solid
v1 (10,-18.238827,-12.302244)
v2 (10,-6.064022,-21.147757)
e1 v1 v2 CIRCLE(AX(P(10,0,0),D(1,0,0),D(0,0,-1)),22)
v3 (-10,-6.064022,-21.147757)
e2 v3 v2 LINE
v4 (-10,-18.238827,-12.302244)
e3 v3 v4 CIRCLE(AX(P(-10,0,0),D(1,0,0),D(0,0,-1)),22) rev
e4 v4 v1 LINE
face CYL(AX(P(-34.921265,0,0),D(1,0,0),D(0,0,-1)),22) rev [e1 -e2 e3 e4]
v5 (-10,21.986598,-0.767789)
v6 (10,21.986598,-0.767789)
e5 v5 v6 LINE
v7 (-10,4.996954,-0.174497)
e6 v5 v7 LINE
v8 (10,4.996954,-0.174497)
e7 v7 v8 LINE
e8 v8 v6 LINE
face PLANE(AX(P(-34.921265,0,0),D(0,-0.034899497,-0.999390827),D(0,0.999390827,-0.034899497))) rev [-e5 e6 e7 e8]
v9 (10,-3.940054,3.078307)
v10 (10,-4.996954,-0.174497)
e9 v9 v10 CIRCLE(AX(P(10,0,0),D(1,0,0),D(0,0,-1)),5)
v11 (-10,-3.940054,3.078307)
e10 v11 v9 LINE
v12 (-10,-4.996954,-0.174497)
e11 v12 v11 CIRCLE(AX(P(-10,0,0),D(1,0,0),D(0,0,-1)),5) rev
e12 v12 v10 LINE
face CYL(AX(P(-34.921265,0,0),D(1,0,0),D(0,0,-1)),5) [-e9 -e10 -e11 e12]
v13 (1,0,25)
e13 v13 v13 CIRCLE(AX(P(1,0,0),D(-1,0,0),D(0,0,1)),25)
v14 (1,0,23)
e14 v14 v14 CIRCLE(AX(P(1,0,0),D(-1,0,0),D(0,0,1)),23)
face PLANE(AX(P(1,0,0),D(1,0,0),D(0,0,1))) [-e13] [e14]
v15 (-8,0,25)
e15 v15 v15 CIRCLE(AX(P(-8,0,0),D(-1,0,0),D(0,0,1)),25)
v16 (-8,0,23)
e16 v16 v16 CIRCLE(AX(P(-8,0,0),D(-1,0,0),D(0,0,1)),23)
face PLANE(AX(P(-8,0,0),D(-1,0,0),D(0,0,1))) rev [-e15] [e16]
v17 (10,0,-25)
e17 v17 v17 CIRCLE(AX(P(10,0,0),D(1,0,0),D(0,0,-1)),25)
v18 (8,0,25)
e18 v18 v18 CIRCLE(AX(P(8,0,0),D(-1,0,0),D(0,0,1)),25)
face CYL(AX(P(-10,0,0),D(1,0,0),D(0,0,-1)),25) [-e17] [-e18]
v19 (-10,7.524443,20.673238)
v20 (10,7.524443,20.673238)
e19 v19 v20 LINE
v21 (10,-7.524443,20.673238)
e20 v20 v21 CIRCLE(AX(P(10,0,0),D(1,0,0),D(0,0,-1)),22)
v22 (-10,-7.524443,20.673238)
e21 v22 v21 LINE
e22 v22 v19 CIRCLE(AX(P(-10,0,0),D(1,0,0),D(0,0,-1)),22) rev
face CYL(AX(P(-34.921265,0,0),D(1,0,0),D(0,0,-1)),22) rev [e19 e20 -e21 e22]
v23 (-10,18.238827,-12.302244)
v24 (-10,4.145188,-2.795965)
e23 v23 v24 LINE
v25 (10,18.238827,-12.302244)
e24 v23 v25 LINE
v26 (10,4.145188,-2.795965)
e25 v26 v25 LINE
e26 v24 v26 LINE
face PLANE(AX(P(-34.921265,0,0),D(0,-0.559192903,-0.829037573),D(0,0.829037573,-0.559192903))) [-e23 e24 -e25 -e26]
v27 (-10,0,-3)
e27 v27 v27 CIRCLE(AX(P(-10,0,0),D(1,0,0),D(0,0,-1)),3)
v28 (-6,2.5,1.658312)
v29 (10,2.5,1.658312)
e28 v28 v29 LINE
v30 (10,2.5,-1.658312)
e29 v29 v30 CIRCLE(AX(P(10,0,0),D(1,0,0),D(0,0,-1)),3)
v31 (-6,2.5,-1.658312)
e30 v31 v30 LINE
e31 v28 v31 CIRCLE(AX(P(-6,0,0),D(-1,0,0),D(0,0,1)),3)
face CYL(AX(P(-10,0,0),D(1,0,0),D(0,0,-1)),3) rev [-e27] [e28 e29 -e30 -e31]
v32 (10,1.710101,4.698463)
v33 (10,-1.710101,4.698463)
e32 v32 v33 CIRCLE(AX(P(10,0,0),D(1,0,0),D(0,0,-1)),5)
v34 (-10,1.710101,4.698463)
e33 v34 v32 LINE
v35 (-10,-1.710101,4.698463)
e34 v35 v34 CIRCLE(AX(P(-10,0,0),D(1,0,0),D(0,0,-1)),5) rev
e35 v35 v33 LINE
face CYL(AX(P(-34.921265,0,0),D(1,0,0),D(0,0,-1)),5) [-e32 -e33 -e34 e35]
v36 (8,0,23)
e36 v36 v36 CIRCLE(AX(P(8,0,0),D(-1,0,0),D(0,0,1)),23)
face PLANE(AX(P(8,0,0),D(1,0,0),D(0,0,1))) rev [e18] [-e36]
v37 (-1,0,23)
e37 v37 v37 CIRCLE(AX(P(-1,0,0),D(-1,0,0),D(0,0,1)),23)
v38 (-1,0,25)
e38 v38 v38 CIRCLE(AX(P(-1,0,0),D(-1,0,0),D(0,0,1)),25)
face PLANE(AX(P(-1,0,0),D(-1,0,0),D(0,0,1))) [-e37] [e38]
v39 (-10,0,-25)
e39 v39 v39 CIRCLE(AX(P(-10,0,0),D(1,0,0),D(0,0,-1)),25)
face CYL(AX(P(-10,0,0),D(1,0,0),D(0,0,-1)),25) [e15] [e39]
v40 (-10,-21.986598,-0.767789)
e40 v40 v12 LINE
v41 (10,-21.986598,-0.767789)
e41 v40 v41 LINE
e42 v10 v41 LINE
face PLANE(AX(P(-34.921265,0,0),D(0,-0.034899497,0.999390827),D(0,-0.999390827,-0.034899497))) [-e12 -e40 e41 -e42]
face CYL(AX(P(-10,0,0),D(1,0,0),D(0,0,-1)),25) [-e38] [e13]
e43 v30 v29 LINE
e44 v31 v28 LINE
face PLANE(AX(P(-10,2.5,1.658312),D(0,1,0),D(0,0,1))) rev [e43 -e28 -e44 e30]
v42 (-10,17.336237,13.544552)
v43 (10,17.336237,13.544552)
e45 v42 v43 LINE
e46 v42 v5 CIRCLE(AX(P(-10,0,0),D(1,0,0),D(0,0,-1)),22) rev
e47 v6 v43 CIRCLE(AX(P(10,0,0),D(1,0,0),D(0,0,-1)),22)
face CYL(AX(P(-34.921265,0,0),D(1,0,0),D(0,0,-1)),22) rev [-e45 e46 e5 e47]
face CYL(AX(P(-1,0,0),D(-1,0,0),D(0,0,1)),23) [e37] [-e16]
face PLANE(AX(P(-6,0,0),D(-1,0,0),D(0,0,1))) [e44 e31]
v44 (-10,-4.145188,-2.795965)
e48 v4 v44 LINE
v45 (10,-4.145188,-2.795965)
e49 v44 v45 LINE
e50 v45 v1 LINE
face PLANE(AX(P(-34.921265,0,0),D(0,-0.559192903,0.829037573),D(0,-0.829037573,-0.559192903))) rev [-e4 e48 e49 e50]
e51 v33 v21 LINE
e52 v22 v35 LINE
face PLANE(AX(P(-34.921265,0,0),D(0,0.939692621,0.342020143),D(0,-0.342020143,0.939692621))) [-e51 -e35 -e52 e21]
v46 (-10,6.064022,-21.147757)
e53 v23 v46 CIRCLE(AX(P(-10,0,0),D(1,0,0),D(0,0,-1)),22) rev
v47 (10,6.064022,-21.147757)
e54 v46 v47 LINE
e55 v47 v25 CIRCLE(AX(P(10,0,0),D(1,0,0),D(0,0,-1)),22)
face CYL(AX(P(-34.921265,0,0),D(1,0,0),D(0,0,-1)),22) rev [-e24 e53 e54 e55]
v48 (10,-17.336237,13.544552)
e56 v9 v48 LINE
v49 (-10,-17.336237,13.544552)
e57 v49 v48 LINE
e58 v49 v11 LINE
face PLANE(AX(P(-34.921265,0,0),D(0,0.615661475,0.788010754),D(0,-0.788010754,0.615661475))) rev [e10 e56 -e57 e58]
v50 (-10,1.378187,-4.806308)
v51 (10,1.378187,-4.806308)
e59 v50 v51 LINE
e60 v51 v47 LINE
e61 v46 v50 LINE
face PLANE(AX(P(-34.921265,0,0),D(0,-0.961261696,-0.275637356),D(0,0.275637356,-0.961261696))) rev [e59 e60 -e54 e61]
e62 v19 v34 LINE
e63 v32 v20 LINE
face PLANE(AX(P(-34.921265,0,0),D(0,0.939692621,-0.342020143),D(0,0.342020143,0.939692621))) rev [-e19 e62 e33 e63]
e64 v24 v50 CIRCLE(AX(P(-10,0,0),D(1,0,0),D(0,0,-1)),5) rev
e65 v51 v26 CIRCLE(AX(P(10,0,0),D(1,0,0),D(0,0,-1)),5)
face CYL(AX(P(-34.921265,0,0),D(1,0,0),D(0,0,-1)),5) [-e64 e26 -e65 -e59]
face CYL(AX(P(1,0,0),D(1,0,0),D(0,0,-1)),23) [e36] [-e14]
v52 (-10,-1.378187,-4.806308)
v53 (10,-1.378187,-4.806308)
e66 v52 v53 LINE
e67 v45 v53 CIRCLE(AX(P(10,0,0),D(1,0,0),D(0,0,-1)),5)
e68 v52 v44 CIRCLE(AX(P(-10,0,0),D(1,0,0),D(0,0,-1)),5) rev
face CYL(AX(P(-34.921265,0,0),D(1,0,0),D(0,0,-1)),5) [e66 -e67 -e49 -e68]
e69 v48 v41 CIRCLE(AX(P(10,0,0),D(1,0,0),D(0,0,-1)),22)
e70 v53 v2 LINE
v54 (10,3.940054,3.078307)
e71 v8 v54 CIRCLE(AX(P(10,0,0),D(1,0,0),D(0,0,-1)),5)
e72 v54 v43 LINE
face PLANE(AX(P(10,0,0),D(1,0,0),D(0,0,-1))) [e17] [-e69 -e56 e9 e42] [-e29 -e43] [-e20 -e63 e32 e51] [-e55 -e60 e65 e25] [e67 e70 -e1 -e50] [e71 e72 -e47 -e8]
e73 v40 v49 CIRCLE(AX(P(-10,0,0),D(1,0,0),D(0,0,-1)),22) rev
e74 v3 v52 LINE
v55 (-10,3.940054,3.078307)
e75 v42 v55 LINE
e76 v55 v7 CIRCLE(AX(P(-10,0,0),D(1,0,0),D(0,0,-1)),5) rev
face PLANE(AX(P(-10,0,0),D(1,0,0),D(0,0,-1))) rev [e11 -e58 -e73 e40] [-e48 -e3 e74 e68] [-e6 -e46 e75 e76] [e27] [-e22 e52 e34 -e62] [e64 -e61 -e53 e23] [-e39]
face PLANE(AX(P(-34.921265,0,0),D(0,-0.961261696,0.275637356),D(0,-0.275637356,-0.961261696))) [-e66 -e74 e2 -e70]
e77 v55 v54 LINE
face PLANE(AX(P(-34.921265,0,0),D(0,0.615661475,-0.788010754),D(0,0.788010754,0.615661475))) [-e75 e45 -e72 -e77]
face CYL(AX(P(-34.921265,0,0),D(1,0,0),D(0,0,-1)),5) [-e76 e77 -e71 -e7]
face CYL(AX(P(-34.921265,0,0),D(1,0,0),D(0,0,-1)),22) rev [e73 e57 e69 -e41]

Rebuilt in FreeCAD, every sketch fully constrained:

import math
import FreeCAD as App
import Part
import Sketcher
Q = App.Units.Quantity

doc = App.newDocument("Part")
body = doc.addObject("PartDesign::Body", "Body")

sketch1 = doc.addObject("Sketcher::SketchObject", "Sketch")
body.addObject(sketch1)
sketch1.AttachmentSupport = (doc.YZ_Plane, [""])
sketch1.MapMode = "FlatFace"
sketch1.addGeometry([
    Part.Circle(App.Vector(0, 0, 0), App.Vector(0, 0, 1), 25),
    Part.ArcOfCircle(Part.Circle(App.Vector(0, 0, 0), App.Vector(0, 0, 1), 3), math.radians(34), math.radians(326)),
    Part.LineSegment(App.Vector(2.5, 1.7, 0), App.Vector(2.5, -1.7, 0)),
], False)
sketch1.addConstraint([
    Sketcher.Constraint("Coincident", 1, 1, 2, 1),
    Sketcher.Constraint("Coincident", 2, 2, 1, 2),
    Sketcher.Constraint("Vertical", 2),
    Sketcher.Constraint("Coincident", 0, 3, -1, 1),
    Sketcher.Constraint("Coincident", 1, 3, -1, 1),
    Sketcher.Constraint("Diameter", 0, 50.0),
    Sketcher.Constraint("Radius", 1, 3.0),
    Sketcher.Constraint("DistanceX", -1, 1, 1, 1, 2.5),
])
pad1 = doc.addObject("PartDesign::Pad", "Pad")
body.addObject(pad1)
pad1.Profile = sketch1
pad1.Type = "TwoLengths"
pad1.Length = 10
pad1.Length2 = 10

sketch2 = doc.addObject("Sketcher::SketchObject", "Sketch001")
body.addObject(sketch2)
sketch2.AttachmentSupport = (doc.YZ_Plane, [""])
sketch2.MapMode = "FlatFace"
sketch2.AttachmentOffset = App.Placement(App.Vector(0, 0, -8), App.Rotation())
sketch2.addGeometry([
    Part.Circle(App.Vector(0, 0, 0), App.Vector(0, 0, 1), 25),
    Part.Circle(App.Vector(0, 0, 0), App.Vector(0, 0, 1), 23),
], False)
sketch2.addConstraint([
    Sketcher.Constraint("Coincident", 0, 3, -1, 1),
    Sketcher.Constraint("Coincident", 1, 3, -1, 1),
    Sketcher.Constraint("Diameter", 0, 50.0),
    Sketcher.Constraint("Diameter", 1, 46.0),
])
pocket1 = doc.addObject("PartDesign::Pocket", "Pocket")
body.addObject(pocket1)
pocket1.Profile = sketch2
pocket1.Length = 7
pocket1.Reversed = True
doc.recompute()

mirrored = doc.addObject("PartDesign::Mirrored", "Mirrored")
body.addObject(mirrored)
mirrored.Originals = [pocket1]
mirrored.MirrorPlane = (doc.YZ_Plane, [""])
body.Tip = mirrored

sketch3 = doc.addObject("Sketcher::SketchObject", "Sketch002")
body.addObject(sketch3)
sketch3.AttachmentSupport = (doc.YZ_Plane, [""])
sketch3.MapMode = "FlatFace"
sketch3.AttachmentOffset = App.Placement(App.Vector(0, 0, 10), App.Rotation())
sketch3.addGeometry([
    Part.ArcOfCircle(Part.Circle(App.Vector(0, 0, 0), App.Vector(0, 0, 1), 5), math.radians(70), math.radians(90)),
    Part.LineSegment(App.Vector(1.7, 4.7, 0), App.Vector(7.5, 20.7, 0)),
    Part.ArcOfCircle(Part.Circle(App.Vector(0, 0, 0), App.Vector(0, 0, 1), 22), math.radians(70), math.radians(90)),
    Part.ArcOfCircle(Part.Circle(App.Vector(0, 0, 0), App.Vector(0, 0, 1), 22), math.radians(90), math.radians(110)),
    Part.LineSegment(App.Vector(-7.5, 20.7, 0), App.Vector(-1.7, 4.7, 0)),
    Part.ArcOfCircle(Part.Circle(App.Vector(0, 0, 0), App.Vector(0, 0, 1), 5), math.radians(90), math.radians(110)),
    Part.LineSegment(App.Vector(17.3, 13.5, 0), App.Vector(3.9, 3.1, 0)),
    Part.ArcOfCircle(Part.Circle(App.Vector(0, 0, 0), App.Vector(0, 0, 1), 5), math.radians(-2), math.radians(38)),
    Part.LineSegment(App.Vector(5, -0.2, 0), App.Vector(22, -0.8, 0)),
    Part.ArcOfCircle(Part.Circle(App.Vector(0, 0, 0), App.Vector(0, 0, 1), 22), math.radians(-2), math.radians(38)),
    Part.LineSegment(App.Vector(18.2, -12.3, 0), App.Vector(4.1, -2.8, 0)),
    Part.ArcOfCircle(Part.Circle(App.Vector(0, 0, 0), App.Vector(0, 0, 1), 5), math.radians(-74), math.radians(-34)),
    Part.LineSegment(App.Vector(1.4, -4.8, 0), App.Vector(6.1, -21.1, 0)),
    Part.ArcOfCircle(Part.Circle(App.Vector(0, 0, 0), App.Vector(0, 0, 1), 22), math.radians(-74), math.radians(-34)),
    Part.ArcOfCircle(Part.Circle(App.Vector(0, 0, 0), App.Vector(0, 0, 1), 5), math.radians(-146), math.radians(-106)),
    Part.LineSegment(App.Vector(-4.1, -2.8, 0), App.Vector(-18.2, -12.3, 0)),
    Part.ArcOfCircle(Part.Circle(App.Vector(0, 0, 0), App.Vector(0, 0, 1), 22), math.radians(-146), math.radians(-106)),
    Part.LineSegment(App.Vector(-6.1, -21.1, 0), App.Vector(-1.4, -4.8, 0)),
    Part.ArcOfCircle(Part.Circle(App.Vector(0, 0, 0), App.Vector(0, 0, 1), 5), math.radians(142), math.radians(182)),
    Part.LineSegment(App.Vector(-3.9, 3.1, 0), App.Vector(-17.3, 13.5, 0)),
    Part.ArcOfCircle(Part.Circle(App.Vector(0, 0, 0), App.Vector(0, 0, 1), 22), math.radians(142), math.radians(182)),
    Part.LineSegment(App.Vector(-22, -0.8, 0), App.Vector(-5, -0.2, 0)),
], False)
sketch3.addConstraint([
    Sketcher.Constraint("Coincident", 0, 1, 1, 1),
    Sketcher.Constraint("Coincident", 1, 2, 2, 1),
    Sketcher.Constraint("Tangent", 2, 2, 3, 1),
    Sketcher.Constraint("Coincident", 3, 2, 4, 1),
    Sketcher.Constraint("Coincident", 4, 2, 5, 2),
    Sketcher.Constraint("Tangent", 5, 1, 0, 2),
    Sketcher.Constraint("Coincident", 6, 2, 7, 2),
    Sketcher.Constraint("Coincident", 7, 1, 8, 1),
    Sketcher.Constraint("Coincident", 8, 2, 9, 1),
    Sketcher.Constraint("Coincident", 9, 2, 6, 1),
    Sketcher.Constraint("Coincident", 10, 2, 11, 2),
    Sketcher.Constraint("Coincident", 11, 1, 12, 1),
    Sketcher.Constraint("Coincident", 12, 2, 13, 1),
    Sketcher.Constraint("Coincident", 13, 2, 10, 1),
    Sketcher.Constraint("Coincident", 14, 1, 15, 1),
    Sketcher.Constraint("Coincident", 15, 2, 16, 1),
    Sketcher.Constraint("Coincident", 16, 2, 17, 1),
    Sketcher.Constraint("Coincident", 17, 2, 14, 2),
    Sketcher.Constraint("Coincident", 18, 1, 19, 1),
    Sketcher.Constraint("Coincident", 19, 2, 20, 1),
    Sketcher.Constraint("Coincident", 20, 2, 21, 1),
    Sketcher.Constraint("Coincident", 21, 2, 18, 2),
    Sketcher.Constraint("Coincident", 0, 3, -1, 1),
    Sketcher.Constraint("Coincident", 2, 3, -1, 1),
    Sketcher.Constraint("Coincident", 7, 3, -1, 1),
    Sketcher.Constraint("Coincident", 9, 3, -1, 1),
    Sketcher.Constraint("Coincident", 11, 3, -1, 1),
    Sketcher.Constraint("Coincident", 13, 3, -1, 1),
    Sketcher.Constraint("Coincident", 14, 3, -1, 1),
    Sketcher.Constraint("Coincident", 16, 3, -1, 1),
    Sketcher.Constraint("Coincident", 18, 3, -1, 1),
    Sketcher.Constraint("Coincident", 20, 3, -1, 1),
    Sketcher.Constraint("Equal", 2, 3),
    Sketcher.Constraint("Equal", 0, 5),
    Sketcher.Constraint("Equal", 5, 7),
    Sketcher.Constraint("Equal", 3, 9),
    Sketcher.Constraint("Equal", 7, 11),
    Sketcher.Constraint("Equal", 9, 13),
    Sketcher.Constraint("Equal", 11, 14),
    Sketcher.Constraint("Equal", 13, 16),
    Sketcher.Constraint("Equal", 14, 18),
    Sketcher.Constraint("Equal", 16, 20),
    Sketcher.Constraint("PointOnObject", 2, 2, -2),
    Sketcher.Constraint("PointOnObject", 5, 1, -2),
    Sketcher.Constraint("Horizontal", 1, 2, 3, 2),
    Sketcher.Constraint("Horizontal", 0, 1, 4, 2),
    Sketcher.Constraint("Horizontal", 10, 2, 14, 1),
    Sketcher.Constraint("Horizontal", 13, 2, 15, 2),
    Sketcher.Constraint("Horizontal", 12, 2, 16, 2),
    Sketcher.Constraint("Horizontal", 11, 1, 17, 2),
    Sketcher.Constraint("Horizontal", 6, 2, 18, 1),
    Sketcher.Constraint("Horizontal", 9, 2, 19, 2),
    Sketcher.Constraint("Horizontal", 8, 2, 20, 2),
    Sketcher.Constraint("Horizontal", 7, 1, 21, 2),
    Sketcher.Constraint("Radius", 0, 5.0),
    Sketcher.Constraint("Radius", 2, 22.0),
    Sketcher.Constraint("Angle", 1, Q("70 deg")),
    Sketcher.Constraint("Angle", 6, Q("-142 deg")),
    Sketcher.Constraint("Angle", 8, Q("-2 deg")),
    Sketcher.Constraint("Angle", 10, Q("146 deg")),
    Sketcher.Constraint("Angle", 12, Q("-74 deg")),
    Sketcher.Constraint("DistanceX", 11, 1, 10, 2, 2.767001),
    Sketcher.Constraint("DistanceX", -1, 1, 0, 1, 1.710101),
    Sketcher.Constraint("DistanceX", -1, 1, 8, 2, 21.986598),
    Sketcher.Constraint("DistanceX", 6, 2, 7, 1, 1.0569),
    Sketcher.Constraint("DistanceY", 11, 1, -1, 1, 4.806308),
])
pocket2 = doc.addObject("PartDesign::Pocket", "Pocket001")
body.addObject(pocket2)
pocket2.Profile = sketch3
pocket2.Length = 20

sketch4 = doc.addObject("Sketcher::SketchObject", "Sketch003")
body.addObject(sketch4)
sketch4.AttachmentSupport = (doc.YZ_Plane, [""])
sketch4.MapMode = "FlatFace"
sketch4.AttachmentOffset = App.Placement(App.Vector(0, 0, -10), App.Rotation())
sketch4.addGeometry(Part.Circle(App.Vector(0, 0, 0), App.Vector(0, 0, 1), 3), False)
sketch4.addConstraint([
    Sketcher.Constraint("Coincident", 0, 3, -1, 1),
    Sketcher.Constraint("Diameter", 0, 6.0),
])
pocket3 = doc.addObject("PartDesign::Pocket", "Pocket002")
body.addObject(pocket3)
pocket3.Profile = sketch4
pocket3.Length = 4
pocket3.Reversed = True

doc.recompute()
